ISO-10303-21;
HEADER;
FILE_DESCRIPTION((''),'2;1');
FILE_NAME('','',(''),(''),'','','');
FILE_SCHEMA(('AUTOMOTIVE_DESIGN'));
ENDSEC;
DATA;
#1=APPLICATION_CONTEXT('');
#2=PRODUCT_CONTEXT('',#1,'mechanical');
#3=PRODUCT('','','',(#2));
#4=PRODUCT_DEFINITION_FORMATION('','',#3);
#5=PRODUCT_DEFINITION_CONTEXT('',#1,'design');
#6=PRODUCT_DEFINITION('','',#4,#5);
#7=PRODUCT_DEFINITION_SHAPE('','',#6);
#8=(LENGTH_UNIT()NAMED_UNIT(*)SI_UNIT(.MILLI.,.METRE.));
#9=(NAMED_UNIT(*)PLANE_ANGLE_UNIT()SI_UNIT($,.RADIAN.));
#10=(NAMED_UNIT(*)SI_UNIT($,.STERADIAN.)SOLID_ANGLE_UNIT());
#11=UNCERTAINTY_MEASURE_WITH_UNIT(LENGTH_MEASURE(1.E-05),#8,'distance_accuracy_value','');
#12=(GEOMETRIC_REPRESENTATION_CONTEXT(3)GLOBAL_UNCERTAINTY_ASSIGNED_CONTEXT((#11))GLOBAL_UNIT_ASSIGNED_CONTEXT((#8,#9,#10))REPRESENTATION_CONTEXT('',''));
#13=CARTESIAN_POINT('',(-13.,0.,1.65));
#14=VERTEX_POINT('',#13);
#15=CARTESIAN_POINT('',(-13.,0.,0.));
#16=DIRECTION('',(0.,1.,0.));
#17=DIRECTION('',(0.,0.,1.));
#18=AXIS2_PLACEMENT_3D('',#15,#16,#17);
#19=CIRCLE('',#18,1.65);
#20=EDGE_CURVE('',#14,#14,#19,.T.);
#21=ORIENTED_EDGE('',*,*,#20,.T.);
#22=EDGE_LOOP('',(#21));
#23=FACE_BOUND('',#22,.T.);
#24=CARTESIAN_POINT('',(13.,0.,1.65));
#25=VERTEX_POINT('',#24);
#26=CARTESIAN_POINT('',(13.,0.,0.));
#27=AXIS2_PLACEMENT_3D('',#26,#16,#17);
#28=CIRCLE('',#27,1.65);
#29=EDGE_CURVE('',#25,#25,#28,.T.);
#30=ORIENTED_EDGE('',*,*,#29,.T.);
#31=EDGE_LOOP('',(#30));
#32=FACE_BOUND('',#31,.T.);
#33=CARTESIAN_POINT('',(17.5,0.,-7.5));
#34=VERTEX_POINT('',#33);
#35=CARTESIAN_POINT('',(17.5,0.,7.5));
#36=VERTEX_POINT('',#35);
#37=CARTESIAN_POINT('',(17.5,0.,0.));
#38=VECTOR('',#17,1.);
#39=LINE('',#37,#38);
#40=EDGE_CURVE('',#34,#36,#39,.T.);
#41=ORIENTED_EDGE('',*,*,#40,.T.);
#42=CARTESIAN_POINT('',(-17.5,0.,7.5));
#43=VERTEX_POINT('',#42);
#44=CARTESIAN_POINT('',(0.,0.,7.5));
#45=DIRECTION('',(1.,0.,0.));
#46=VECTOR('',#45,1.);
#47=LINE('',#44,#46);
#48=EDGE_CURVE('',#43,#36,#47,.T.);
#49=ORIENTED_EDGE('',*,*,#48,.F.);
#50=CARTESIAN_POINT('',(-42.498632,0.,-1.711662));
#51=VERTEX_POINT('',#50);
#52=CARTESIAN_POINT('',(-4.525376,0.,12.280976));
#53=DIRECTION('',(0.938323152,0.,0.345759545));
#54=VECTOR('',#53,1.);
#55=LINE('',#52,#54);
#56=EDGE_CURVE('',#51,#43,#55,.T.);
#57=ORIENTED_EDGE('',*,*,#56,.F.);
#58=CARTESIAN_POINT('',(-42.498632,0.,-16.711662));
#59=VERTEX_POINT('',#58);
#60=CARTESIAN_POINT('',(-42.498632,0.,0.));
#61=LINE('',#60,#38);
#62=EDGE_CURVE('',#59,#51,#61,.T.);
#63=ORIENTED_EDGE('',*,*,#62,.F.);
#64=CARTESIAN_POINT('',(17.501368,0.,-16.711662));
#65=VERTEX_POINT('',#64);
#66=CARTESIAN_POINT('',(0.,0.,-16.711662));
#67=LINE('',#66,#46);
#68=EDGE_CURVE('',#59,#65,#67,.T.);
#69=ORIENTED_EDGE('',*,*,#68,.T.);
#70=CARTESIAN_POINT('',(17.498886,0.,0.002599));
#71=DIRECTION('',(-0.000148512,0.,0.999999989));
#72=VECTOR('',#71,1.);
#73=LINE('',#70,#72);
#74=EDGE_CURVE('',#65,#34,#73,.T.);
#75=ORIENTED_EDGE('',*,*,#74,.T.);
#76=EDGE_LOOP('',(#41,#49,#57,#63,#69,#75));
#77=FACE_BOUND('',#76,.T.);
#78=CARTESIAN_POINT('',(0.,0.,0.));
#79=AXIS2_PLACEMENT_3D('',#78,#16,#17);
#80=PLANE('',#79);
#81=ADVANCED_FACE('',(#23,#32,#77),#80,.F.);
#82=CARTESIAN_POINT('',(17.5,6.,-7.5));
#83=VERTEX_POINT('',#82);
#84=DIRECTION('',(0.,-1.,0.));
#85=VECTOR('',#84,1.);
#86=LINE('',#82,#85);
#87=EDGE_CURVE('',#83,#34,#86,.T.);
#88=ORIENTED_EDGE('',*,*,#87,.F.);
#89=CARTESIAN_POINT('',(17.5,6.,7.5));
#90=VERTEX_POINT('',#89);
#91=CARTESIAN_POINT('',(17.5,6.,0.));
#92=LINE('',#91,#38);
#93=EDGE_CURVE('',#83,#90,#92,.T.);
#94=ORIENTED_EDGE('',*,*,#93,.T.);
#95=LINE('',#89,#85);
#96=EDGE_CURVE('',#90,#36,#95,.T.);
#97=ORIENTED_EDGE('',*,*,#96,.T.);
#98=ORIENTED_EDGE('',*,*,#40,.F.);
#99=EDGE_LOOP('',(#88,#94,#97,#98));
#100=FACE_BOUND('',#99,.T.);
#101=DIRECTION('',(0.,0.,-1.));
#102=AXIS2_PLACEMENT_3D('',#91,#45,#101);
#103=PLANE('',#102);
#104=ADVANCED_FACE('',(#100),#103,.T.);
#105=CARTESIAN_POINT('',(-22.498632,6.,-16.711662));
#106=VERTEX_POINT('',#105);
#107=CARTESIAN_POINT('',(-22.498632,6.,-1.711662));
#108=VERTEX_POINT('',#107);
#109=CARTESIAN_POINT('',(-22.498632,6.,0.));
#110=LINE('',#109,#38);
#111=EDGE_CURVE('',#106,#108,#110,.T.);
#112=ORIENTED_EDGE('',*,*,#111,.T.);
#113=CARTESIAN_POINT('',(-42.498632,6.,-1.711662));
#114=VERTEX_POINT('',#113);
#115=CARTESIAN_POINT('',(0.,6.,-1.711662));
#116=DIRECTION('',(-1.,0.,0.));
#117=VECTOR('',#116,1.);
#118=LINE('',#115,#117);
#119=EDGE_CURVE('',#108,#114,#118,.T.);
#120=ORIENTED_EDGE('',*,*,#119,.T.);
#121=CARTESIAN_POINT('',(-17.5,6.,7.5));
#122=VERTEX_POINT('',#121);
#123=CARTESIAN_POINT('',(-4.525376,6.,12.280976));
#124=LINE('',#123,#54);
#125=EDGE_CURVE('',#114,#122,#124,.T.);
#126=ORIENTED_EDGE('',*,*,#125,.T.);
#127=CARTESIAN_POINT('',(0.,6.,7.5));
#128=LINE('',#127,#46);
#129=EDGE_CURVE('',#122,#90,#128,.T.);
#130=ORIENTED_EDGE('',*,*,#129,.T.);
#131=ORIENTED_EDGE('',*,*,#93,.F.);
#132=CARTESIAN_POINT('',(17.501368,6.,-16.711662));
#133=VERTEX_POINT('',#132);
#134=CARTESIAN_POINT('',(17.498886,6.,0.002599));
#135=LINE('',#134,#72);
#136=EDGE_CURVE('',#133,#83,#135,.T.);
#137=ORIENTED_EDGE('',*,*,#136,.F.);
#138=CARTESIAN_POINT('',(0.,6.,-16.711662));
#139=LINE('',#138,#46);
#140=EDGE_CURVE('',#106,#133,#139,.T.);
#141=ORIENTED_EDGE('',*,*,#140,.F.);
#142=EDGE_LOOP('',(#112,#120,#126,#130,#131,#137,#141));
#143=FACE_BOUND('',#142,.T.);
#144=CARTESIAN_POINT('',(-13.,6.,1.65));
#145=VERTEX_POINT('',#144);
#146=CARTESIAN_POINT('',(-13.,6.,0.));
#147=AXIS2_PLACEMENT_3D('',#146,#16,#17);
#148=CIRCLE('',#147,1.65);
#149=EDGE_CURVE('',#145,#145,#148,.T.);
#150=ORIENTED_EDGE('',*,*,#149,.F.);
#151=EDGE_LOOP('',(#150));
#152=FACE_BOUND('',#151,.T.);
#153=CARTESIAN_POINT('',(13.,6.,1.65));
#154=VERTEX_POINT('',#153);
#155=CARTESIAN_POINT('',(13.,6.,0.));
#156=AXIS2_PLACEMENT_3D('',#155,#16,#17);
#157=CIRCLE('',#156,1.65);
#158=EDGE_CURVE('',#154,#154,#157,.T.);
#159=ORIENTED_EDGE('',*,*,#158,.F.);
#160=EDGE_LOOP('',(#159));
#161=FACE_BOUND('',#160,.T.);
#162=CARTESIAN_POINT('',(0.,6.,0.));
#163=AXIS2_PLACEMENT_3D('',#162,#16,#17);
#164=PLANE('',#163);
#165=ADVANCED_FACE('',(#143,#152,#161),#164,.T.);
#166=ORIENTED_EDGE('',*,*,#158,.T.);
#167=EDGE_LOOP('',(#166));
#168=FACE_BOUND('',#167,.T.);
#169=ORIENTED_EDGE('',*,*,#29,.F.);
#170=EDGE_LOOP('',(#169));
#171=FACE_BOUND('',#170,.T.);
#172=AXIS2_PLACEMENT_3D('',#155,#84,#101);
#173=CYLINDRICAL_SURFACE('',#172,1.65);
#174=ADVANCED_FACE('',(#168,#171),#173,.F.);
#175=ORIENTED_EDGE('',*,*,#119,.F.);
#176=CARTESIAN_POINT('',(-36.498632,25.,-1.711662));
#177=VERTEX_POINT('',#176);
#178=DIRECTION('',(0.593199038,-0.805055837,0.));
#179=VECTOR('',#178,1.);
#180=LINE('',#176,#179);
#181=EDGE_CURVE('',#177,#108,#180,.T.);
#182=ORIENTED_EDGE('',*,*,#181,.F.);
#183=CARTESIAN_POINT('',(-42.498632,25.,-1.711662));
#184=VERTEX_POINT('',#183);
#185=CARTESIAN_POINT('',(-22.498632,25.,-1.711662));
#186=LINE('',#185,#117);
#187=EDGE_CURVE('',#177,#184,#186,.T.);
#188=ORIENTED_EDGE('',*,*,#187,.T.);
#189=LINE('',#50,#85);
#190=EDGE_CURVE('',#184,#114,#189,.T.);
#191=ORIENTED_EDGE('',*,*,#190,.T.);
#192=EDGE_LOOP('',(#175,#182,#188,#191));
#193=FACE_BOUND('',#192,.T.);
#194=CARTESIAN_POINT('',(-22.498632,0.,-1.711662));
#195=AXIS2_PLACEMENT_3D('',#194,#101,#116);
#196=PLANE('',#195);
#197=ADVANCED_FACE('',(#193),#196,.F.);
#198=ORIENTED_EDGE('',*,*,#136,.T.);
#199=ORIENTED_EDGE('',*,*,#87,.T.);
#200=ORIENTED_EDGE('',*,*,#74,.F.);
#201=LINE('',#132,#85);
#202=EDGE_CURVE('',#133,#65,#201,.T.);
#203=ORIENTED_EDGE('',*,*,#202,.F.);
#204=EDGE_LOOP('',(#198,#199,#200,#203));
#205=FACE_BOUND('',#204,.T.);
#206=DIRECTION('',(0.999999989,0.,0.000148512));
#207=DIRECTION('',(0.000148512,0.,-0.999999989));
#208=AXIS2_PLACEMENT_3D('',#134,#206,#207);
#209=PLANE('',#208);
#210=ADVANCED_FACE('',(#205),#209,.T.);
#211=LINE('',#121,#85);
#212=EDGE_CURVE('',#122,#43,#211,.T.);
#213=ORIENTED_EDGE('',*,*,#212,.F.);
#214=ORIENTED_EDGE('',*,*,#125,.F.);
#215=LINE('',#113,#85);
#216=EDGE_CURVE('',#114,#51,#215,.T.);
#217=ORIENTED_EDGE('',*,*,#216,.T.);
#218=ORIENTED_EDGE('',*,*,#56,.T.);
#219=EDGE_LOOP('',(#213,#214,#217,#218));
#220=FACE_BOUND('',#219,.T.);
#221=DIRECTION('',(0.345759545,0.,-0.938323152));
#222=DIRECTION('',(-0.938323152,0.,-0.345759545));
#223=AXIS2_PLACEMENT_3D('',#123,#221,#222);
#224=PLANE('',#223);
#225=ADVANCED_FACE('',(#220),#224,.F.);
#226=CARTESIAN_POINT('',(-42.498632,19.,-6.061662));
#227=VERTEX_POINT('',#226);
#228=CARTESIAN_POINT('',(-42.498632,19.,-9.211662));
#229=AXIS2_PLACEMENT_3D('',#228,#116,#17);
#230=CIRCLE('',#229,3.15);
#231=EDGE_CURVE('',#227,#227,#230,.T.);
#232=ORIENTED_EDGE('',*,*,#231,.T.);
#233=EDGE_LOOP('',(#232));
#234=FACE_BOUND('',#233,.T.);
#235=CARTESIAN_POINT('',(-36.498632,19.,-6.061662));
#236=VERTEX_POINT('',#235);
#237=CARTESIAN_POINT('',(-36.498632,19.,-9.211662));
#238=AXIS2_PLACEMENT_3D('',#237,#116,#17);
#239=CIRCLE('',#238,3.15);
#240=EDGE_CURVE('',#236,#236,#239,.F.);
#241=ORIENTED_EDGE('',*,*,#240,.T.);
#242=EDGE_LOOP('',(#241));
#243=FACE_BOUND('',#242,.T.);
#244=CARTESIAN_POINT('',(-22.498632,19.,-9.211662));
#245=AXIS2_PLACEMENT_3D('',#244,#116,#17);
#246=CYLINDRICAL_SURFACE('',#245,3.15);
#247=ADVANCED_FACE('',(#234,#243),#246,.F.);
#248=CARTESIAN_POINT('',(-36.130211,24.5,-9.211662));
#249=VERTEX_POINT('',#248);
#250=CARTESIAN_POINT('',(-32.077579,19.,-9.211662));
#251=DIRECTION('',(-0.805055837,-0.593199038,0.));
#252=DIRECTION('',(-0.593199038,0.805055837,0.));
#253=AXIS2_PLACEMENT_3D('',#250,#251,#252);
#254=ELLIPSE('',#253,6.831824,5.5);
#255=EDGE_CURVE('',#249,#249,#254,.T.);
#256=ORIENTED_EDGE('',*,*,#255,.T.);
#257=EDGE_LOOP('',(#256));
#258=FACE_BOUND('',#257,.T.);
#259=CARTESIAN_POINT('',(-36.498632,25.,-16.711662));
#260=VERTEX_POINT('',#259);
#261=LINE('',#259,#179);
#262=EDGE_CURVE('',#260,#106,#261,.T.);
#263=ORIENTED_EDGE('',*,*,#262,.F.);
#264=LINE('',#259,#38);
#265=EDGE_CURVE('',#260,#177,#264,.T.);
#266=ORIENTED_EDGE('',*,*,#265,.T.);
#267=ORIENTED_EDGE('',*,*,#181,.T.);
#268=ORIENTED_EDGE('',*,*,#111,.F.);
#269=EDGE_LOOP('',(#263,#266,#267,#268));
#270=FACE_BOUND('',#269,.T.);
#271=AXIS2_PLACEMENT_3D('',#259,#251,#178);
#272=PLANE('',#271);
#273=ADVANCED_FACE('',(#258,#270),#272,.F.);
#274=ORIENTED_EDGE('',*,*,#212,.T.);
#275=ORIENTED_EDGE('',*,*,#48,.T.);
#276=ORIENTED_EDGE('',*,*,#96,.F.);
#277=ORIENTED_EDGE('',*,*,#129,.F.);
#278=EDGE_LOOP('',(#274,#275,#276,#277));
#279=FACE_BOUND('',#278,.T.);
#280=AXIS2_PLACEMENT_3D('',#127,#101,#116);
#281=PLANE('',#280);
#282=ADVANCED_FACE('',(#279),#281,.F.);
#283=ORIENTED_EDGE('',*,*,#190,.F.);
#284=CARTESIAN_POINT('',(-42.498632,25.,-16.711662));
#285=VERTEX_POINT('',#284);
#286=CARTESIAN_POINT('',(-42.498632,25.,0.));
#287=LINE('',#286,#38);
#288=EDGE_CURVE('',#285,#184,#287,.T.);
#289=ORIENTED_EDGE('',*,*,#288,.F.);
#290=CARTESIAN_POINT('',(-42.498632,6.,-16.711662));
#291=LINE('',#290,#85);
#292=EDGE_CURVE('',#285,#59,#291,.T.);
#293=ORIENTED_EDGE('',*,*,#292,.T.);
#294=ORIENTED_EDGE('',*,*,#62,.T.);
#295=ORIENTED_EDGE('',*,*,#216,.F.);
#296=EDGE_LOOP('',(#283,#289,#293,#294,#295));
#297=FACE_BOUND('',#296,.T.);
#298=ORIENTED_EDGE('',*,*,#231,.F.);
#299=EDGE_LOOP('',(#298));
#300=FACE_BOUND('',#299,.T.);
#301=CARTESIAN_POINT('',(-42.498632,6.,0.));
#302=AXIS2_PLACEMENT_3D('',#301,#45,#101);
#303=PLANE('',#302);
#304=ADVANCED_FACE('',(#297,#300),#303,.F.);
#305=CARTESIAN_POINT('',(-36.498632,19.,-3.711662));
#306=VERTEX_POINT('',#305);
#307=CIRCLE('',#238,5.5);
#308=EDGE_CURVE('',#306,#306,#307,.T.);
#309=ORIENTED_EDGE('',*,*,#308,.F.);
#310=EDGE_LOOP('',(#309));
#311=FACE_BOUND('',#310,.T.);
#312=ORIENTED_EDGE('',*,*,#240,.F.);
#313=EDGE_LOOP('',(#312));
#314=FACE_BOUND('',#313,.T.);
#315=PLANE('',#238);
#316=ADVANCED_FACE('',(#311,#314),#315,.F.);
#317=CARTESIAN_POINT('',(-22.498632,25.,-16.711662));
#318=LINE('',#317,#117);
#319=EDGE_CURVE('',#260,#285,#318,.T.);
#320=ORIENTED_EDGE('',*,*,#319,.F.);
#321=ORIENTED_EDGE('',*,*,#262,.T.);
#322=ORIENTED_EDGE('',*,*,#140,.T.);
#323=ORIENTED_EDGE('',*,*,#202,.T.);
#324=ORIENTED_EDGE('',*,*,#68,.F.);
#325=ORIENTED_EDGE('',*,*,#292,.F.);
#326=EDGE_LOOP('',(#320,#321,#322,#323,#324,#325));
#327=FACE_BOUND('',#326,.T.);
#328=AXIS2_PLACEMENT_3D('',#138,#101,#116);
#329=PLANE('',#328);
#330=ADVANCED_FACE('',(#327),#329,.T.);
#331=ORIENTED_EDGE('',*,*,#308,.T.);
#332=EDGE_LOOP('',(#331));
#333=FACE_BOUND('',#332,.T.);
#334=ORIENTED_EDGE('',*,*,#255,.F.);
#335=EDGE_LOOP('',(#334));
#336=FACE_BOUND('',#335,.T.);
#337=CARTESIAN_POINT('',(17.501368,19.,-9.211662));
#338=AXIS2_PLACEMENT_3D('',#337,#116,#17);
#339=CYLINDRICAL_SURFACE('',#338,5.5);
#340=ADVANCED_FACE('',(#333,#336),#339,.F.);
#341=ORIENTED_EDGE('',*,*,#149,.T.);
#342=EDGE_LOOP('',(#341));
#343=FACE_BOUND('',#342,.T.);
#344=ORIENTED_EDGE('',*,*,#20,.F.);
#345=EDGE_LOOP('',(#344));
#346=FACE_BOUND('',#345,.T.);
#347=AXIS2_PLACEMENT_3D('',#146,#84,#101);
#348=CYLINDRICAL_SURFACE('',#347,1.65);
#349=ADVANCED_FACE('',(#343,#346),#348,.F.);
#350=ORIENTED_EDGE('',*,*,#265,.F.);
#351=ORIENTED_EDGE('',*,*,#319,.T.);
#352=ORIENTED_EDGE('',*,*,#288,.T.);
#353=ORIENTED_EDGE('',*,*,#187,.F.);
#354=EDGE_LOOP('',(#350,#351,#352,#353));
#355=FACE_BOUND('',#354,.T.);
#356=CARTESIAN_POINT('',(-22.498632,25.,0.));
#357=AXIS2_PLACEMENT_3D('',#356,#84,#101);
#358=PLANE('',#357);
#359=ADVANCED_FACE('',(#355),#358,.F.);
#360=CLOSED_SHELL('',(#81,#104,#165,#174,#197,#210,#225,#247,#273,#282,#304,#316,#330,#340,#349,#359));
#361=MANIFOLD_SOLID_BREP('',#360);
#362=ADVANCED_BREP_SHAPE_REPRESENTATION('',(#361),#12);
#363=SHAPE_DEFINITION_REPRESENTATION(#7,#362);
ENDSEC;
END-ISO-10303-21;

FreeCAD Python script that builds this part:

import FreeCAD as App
import Part
import Sketcher
Q = App.Units.Quantity


def add_polygon(sketch, points):
    """Adds a closed chain of lines whose ends are joined by coincident constraints."""
    first, n = sketch.GeometryCount, len(points)
    for a, b in zip(points, points[1:] + points[:1]):
        sketch.addGeometry(Part.LineSegment(App.Vector(*a, 0), App.Vector(*b, 0)), False)
    for i in range(n):
        sketch.addConstraint(Sketcher.Constraint("Coincident", first + i, 2, first + (i + 1) % n, 1))

doc = App.newDocument("Part")
body = doc.addObject("PartDesign::Body", "Body")

# Sketch on XZ plane
sketch1 = body.newObject("Sketcher::SketchObject", "Sketch")
sketch1.AttachmentSupport = (doc.getObject("XZ_Plane"), [""])
sketch1.MapMode = "FlatFace"
add_polygon(sketch1, [(-17.5, 7.5), (17.5, 7.5), (17.5, -7.5), (17.5, -16.7), (-42.5, -16.7), (-42.5, -1.7)])  # lines 0-5
sketch1.addGeometry(Part.Circle(App.Vector(-13, 0, 0), App.Vector(0, 0, 1), 1.6), False)  # 6
sketch1.addGeometry(Part.Circle(App.Vector(13, 0, 0), App.Vector(0, 0, 1), 1.6), False)  # 7
sketch1.addConstraint([
    Sketcher.Constraint("Horizontal", 0),
    Sketcher.Constraint("Vertical", 1),
    Sketcher.Constraint("Horizontal", 3),
    Sketcher.Constraint("Vertical", 4),
    Sketcher.Constraint("Equal", 6, 7),
    Sketcher.Constraint("Symmetric", 6, 3, 7, 3, -1, 1),
    Sketcher.Constraint("Symmetric", 1, 2, 5, 2, -1, 1),
    Sketcher.Constraint("PointOnObject", 6, 3, -1),
    Sketcher.Constraint("Equal", 1, 4),
    Sketcher.Constraint("Diameter", 6, Q("3.3 mm")),
    Sketcher.Constraint("DistanceX", 0, 1, 0, 2, Q("35 mm")),
    Sketcher.Constraint("DistanceX", 3, 2, 3, 1, Q("60 mm")),
    Sketcher.Constraint("DistanceY", 1, 2, 1, 1, Q("15 mm")),
    Sketcher.Constraint("DistanceX", 6, 3, -1, 1, Q("13 mm")),
    Sketcher.Constraint("Distance", 2, Q("9.211662 mm")),
    Sketcher.Constraint("DistanceX", -1, 1, 2, 2, Q("17.501368 mm")),
])
pad1 = body.newObject("PartDesign::Pad", "Pad")
pad1.Profile = sketch1
pad1.Length = 6
pad1.Reversed = True

# Sketch on YZ plane
sketch2 = body.newObject("Sketcher::SketchObject", "Sketch001")
sketch2.AttachmentSupport = (doc.getObject("YZ_Plane"), [""])
sketch2.MapMode = "FlatFace"
sketch2.AttachmentOffset = App.Placement(App.Vector(0, 0, -42.498632), App.Rotation())
add_polygon(sketch2, [(25, -16.7), (0, -16.7), (0, -1.7), (25, -1.7)])  # lines 0-3
sketch2.addGeometry(Part.Circle(App.Vector(19, -9.2, 0), App.Vector(0, 0, 1), 3.1), False)  # 4
sketch2.addConstraint([
    Sketcher.Constraint("Horizontal", 0),
    Sketcher.Constraint("Vertical", 1),
    Sketcher.Constraint("Horizontal", 2),
    Sketcher.Constraint("Vertical", 3),
    Sketcher.Constraint("PointOnObject", 0, 2, -2),
    Sketcher.Constraint("Diameter", 4, Q("6.3 mm")),
    Sketcher.Constraint("DistanceX", 0, 2, 0, 1, Q("25 mm")),
    Sketcher.Constraint("DistanceY", 1, 1, 1, 2, Q("15 mm")),
    Sketcher.Constraint("DistanceX", -1, 1, 4, 3, Q("19 mm")),
    Sketcher.Constraint("DistanceY", 0, 2, 4, 3, Q("7.5 mm")),
    Sketcher.Constraint("DistanceY", 4, 3, -1, 1, Q("9.211662 mm")),
])
pad2 = body.newObject("PartDesign::Pad", "Pad001")
pad2.Profile = sketch2
pad2.Length = 20

# Sketch on XY plane
sketch3 = body.newObject("Sketcher::SketchObject", "Sketch002")
sketch3.AttachmentSupport = (doc.getObject("XY_Plane"), [""])
sketch3.MapMode = "FlatFace"
sketch3.AttachmentOffset = App.Placement(App.Vector(0, 0, -1.711662), App.Rotation())
add_polygon(sketch3, [(-36, 25), (-22, 6), (-22, 25)])  # lines 0-2
sketch3.addConstraint([
    Sketcher.Constraint("Vertical", 1),
    Sketcher.Constraint("Horizontal", 2),
    Sketcher.Constraint("DistanceX", 2, 2, 2, 1, Q("14 mm")),
    Sketcher.Constraint("DistanceY", 1, 1, 1, 2, Q("19 mm")),
    Sketcher.Constraint("DistanceY", -1, 1, 0, 2, Q("6 mm")),
    Sketcher.Constraint("DistanceX", 0, 2, -1, 1, Q("22.498632 mm")),
])
pocket1 = body.newObject("PartDesign::Pocket", "Pocket")
pocket1.Profile = sketch3
pocket1.Type = "ThroughAll"

# Sketch on YZ plane
sketch4 = body.newObject("Sketcher::SketchObject", "Sketch003")
sketch4.AttachmentSupport = (doc.getObject("YZ_Plane"), [""])
sketch4.MapMode = "FlatFace"
sketch4.AttachmentOffset = App.Placement(App.Vector(0, 0, -36.498632), App.Rotation())
sketch4.addGeometry(Part.Circle(App.Vector(19, -9, 0), App.Vector(0, 0, 1), 6), False)
sketch4.addConstraint([
    Sketcher.Constraint("Diameter", 0, Q("11 mm")),
    Sketcher.Constraint("DistanceX", -1, 1, 0, 3, Q("19 mm")),
    Sketcher.Constraint("DistanceY", 0, 3, -1, 1, Q("9.211662 mm")),
])
pocket2 = body.newObject("PartDesign::Pocket", "Pocket001")
pocket2.Profile = sketch4
pocket2.Type = "ThroughAll"
pocket2.Reversed = True

doc.recompute()
